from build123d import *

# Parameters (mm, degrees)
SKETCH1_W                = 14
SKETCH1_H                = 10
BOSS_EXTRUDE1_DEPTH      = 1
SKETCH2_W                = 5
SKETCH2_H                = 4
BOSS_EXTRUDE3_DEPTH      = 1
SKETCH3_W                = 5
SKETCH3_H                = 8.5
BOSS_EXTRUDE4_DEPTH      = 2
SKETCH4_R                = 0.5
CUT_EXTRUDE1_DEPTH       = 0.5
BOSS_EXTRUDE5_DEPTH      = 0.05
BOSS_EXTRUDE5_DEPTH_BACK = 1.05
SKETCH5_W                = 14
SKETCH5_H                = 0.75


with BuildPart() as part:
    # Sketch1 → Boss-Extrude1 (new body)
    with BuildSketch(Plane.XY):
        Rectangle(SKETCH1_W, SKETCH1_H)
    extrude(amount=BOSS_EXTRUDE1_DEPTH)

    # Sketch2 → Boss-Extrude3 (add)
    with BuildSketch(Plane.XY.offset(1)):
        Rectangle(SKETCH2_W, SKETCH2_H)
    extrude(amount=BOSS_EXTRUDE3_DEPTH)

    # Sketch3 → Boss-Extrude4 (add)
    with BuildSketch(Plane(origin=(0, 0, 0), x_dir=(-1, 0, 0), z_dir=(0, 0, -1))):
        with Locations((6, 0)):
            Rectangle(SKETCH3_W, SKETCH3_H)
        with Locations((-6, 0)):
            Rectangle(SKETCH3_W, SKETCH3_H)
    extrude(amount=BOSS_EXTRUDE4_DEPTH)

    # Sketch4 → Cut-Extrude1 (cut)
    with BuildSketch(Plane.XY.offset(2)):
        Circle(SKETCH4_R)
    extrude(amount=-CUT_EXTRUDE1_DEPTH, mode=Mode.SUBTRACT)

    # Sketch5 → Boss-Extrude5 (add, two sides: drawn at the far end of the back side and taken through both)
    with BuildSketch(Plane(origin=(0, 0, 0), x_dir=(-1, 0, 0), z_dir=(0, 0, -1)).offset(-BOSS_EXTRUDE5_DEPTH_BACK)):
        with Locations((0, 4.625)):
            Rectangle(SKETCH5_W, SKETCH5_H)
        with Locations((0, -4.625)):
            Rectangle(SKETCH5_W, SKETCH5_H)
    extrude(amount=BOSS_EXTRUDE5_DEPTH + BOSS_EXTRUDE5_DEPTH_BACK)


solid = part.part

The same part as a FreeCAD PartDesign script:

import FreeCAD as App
import Part
import Sketcher
Q = App.Units.Quantity

doc = App.newDocument("Part")
body = doc.addObject("PartDesign::Body", "Body")

sketch1 = body.newObject("Sketcher::SketchObject", "Sketch")
sketch1.AttachmentSupport = (doc.getObject("XY_Plane"), [""])
sketch1.MapMode = "FlatFace"
sketch1.addGeometry([
    Part.LineSegment(App.Vector(-7, 5, 0), App.Vector(-7, -5, 0)),
    Part.LineSegment(App.Vector(-7, -5, 0), App.Vector(7, -5, 0)),
    Part.LineSegment(App.Vector(7, -5, 0), App.Vector(7, 5, 0)),
    Part.LineSegment(App.Vector(7, 5, 0), App.Vector(-7, 5, 0)),
], False)
sketch1.addConstraint([
    Sketcher.Constraint("Coincident", 0, 2, 1, 1),
    Sketcher.Constraint("Coincident", 1, 2, 2, 1),
    Sketcher.Constraint("Coincident", 2, 2, 3, 1),
    Sketcher.Constraint("Coincident", 3, 2, 0, 1),
    Sketcher.Constraint("Vertical", 0),
    Sketcher.Constraint("Horizontal", 1),
    Sketcher.Constraint("Vertical", 2),
    Sketcher.Constraint("Horizontal", 3),
    Sketcher.Constraint("Symmetric", 0, 2, 2, 2, -1, 1),
    Sketcher.Constraint("DistanceX", 1, 1, 1, 2, Q("14 mm")),
    Sketcher.Constraint("DistanceY", 0, 2, 0, 1, Q("10 mm")),
])
pad1 = body.newObject("PartDesign::Pad", "Pad")
pad1.Profile = sketch1
pad1.Length = 1

sketch2 = body.newObject("Sketcher::SketchObject", "Sketch001")
sketch2.AttachmentSupport = (doc.getObject("XY_Plane"), [""])
sketch2.MapMode = "FlatFace"
sketch2.AttachmentOffset = App.Placement(App.Vector(0, 0, 1), App.Rotation())
sketch2.addGeometry([
    Part.LineSegment(App.Vector(-2.5, 2, 0), App.Vector(-2.5, -2, 0)),
    Part.LineSegment(App.Vector(-2.5, -2, 0), App.Vector(2.5, -2, 0)),
    Part.LineSegment(App.Vector(2.5, -2, 0), App.Vector(2.5, 2, 0)),
    Part.LineSegment(App.Vector(2.5, 2, 0), App.Vector(-2.5, 2, 0)),
], False)
sketch2.addConstraint([
    Sketcher.Constraint("Coincident", 0, 2, 1, 1),
    Sketcher.Constraint("Coincident", 1, 2, 2, 1),
    Sketcher.Constraint("Coincident", 2, 2, 3, 1),
    Sketcher.Constraint("Coincident", 3, 2, 0, 1),
    Sketcher.Constraint("Vertical", 0),
    Sketcher.Constraint("Horizontal", 1),
    Sketcher.Constraint("Vertical", 2),
    Sketcher.Constraint("Horizontal", 3),
    Sketcher.Constraint("Symmetric", 0, 2, 2, 2, -1, 1),
    Sketcher.Constraint("DistanceX", 1, 1, 1, 2, Q("5 mm")),
    Sketcher.Constraint("DistanceY", 0, 2, 0, 1, Q("4 mm")),
])
pad2 = body.newObject("PartDesign::Pad", "Pad001")
pad2.Profile = sketch2
pad2.Length = 1

sketch3 = body.newObject("Sketcher::SketchObject", "Sketch002")
sketch3.AttachmentSupport = (doc.getObject("XY_Plane"), [""])
sketch3.MapMode = "FlatFace"
sketch3.addGeometry([
    Part.LineSegment(App.Vector(-4, 4, 0), App.Vector(-4, -4, 0)),
    Part.LineSegment(App.Vector(-4, -4, 0), App.Vector(-8, -4, 0)),
    Part.LineSegment(App.Vector(-8, -4, 0), App.Vector(-8, 4, 0)),
    Part.LineSegment(App.Vector(-8, 4, 0), App.Vector(-4, 4, 0)),
    Part.LineSegment(App.Vector(8, 4, 0), App.Vector(8, -4, 0)),
    Part.LineSegment(App.Vector(8, -4, 0), App.Vector(4, -4, 0)),
    Part.LineSegment(App.Vector(4, -4, 0), App.Vector(4, 4, 0)),
    Part.LineSegment(App.Vector(4, 4, 0), App.Vector(8, 4, 0)),
], False)
sketch3.addConstraint([
    Sketcher.Constraint("Coincident", 0, 2, 1, 1),
    Sketcher.Constraint("Coincident", 1, 2, 2, 1),
    Sketcher.Constraint("Coincident", 2, 2, 3, 1),
    Sketcher.Constraint("Coincident", 3, 2, 0, 1),
    Sketcher.Constraint("Coincident", 4, 2, 5, 1),
    Sketcher.Constraint("Coincident", 5, 2, 6, 1),
    Sketcher.Constraint("Coincident", 6, 2, 7, 1),
    Sketcher.Constraint("Coincident", 7, 2, 4, 1),
    Sketcher.Constraint("Vertical", 0),
    Sketcher.Constraint("Horizontal", 1),
    Sketcher.Constraint("Vertical", 2),
    Sketcher.Constraint("Horizontal", 3),
    Sketcher.Constraint("Vertical", 4),
    Sketcher.Constraint("Horizontal", 5),
    Sketcher.Constraint("Vertical", 6),
    Sketcher.Constraint("Horizontal", 7),
    Sketcher.Constraint("Symmetric", 2, 2, 4, 2, -1, 1),
    Sketcher.Constraint("Symmetric", 0, 2, 6, 2, -1, 1),
    Sketcher.Constraint("Horizontal", 1, 2, 4, 2),
    Sketcher.Constraint("DistanceX", 1, 2, 1, 1, Q("5 mm")),
    Sketcher.Constraint("DistanceY", 0, 2, 0, 1, Q("8.5 mm")),
    Sketcher.Constraint("DistanceX", 0, 2, 4, 2, Q("12 mm")),
])
pad3 = body.newObject("PartDesign::Pad", "Pad002")
pad3.Profile = sketch3
pad3.Length = 2
pad3.Reversed = True

sketch4 = body.newObject("Sketcher::SketchObject", "Sketch003")
sketch4.AttachmentSupport = (doc.getObject("XY_Plane"), [""])
sketch4.MapMode = "FlatFace"
sketch4.AttachmentOffset = App.Placement(App.Vector(0, 0, 2), App.Rotation())
sketch4.addGeometry(Part.Circle(App.Vector(0, 0, 0), App.Vector(0, 0, 1), 0.5), False)
sketch4.addConstraint([
    Sketcher.Constraint("Coincident", 0, 3, -1, 1),
    Sketcher.Constraint("Diameter", 0, Q("1 mm")),
])
pocket1 = body.newObject("PartDesign::Pocket", "Pocket")
pocket1.Profile = sketch4
pocket1.Length = 0.5

sketch5 = body.newObject("Sketcher::SketchObject", "Sketch004")
sketch5.AttachmentSupport = (doc.getObject("XY_Plane"), [""])
sketch5.MapMode = "FlatFace"
sketch5.addGeometry([
    Part.LineSegment(App.Vector(7, 5, 0), App.Vector(7, 4.2, 0)),
    Part.LineSegment(App.Vector(7, 4.2, 0), App.Vector(-7, 4.2, 0)),
    Part.LineSegment(App.Vector(-7, 4.2, 0), App.Vector(-7, 5, 0)),
    Part.LineSegment(App.Vector(-7, 5, 0), App.Vector(7, 5, 0)),
    Part.LineSegment(App.Vector(7, -4.2, 0), App.Vector(7, -5, 0)),
    Part.LineSegment(App.Vector(7, -5, 0), App.Vector(-7, -5, 0)),
    Part.LineSegment(App.Vector(-7, -5, 0), App.Vector(-7, -4.2, 0)),
    Part.LineSegment(App.Vector(-7, -4.2, 0), App.Vector(7, -4.2, 0)),
], False)
sketch5.addConstraint([
    Sketcher.Constraint("Coincident", 0, 2, 1, 1),
    Sketcher.Constraint("Coincident", 1, 2, 2, 1),
    Sketcher.Constraint("Coincident", 2, 2, 3, 1),
    Sketcher.Constraint("Coincident", 3, 2, 0, 1),
    Sketcher.Constraint("Coincident", 4, 2, 5, 1),
    Sketcher.Constraint("Coincident", 5, 2, 6, 1),
    Sketcher.Constraint("Coincident", 6, 2, 7, 1),
    Sketcher.Constraint("Coincident", 7, 2, 4, 1),
    Sketcher.Constraint("Vertical", 0),
    Sketcher.Constraint("Horizontal", 1),
    Sketcher.Constraint("Vertical", 2),
    Sketcher.Constraint("Horizontal", 3),
    Sketcher.Constraint("Vertical", 4),
    Sketcher.Constraint("Horizontal", 5),
    Sketcher.Constraint("Vertical", 6),
    Sketcher.Constraint("Horizontal", 7),
    Sketcher.Constraint("Symmetric", 2, 2, 4, 2, -1, 1),
    Sketcher.Constraint("Symmetric", 0, 2, 6, 2, -1, 1),
    Sketcher.Constraint("Vertical", 3, 2, 4, 2),
    Sketcher.Constraint("DistanceX", 1, 2, 1, 1, Q("14 mm")),
    Sketcher.Constraint("DistanceY", -1, 1, 2, 2, Q("5 mm")),
    Sketcher.Constraint("DistanceY", 0, 2, 0, 1, Q("0.75 mm")),
])
pad4 = body.newObject("PartDesign::Pad", "Pad003")
pad4.Profile = sketch5
pad4.Type = "TwoLengths"
pad4.Length = 0.05
pad4.Length2 = 1.05
pad4.Reversed = True

doc.recompute()
